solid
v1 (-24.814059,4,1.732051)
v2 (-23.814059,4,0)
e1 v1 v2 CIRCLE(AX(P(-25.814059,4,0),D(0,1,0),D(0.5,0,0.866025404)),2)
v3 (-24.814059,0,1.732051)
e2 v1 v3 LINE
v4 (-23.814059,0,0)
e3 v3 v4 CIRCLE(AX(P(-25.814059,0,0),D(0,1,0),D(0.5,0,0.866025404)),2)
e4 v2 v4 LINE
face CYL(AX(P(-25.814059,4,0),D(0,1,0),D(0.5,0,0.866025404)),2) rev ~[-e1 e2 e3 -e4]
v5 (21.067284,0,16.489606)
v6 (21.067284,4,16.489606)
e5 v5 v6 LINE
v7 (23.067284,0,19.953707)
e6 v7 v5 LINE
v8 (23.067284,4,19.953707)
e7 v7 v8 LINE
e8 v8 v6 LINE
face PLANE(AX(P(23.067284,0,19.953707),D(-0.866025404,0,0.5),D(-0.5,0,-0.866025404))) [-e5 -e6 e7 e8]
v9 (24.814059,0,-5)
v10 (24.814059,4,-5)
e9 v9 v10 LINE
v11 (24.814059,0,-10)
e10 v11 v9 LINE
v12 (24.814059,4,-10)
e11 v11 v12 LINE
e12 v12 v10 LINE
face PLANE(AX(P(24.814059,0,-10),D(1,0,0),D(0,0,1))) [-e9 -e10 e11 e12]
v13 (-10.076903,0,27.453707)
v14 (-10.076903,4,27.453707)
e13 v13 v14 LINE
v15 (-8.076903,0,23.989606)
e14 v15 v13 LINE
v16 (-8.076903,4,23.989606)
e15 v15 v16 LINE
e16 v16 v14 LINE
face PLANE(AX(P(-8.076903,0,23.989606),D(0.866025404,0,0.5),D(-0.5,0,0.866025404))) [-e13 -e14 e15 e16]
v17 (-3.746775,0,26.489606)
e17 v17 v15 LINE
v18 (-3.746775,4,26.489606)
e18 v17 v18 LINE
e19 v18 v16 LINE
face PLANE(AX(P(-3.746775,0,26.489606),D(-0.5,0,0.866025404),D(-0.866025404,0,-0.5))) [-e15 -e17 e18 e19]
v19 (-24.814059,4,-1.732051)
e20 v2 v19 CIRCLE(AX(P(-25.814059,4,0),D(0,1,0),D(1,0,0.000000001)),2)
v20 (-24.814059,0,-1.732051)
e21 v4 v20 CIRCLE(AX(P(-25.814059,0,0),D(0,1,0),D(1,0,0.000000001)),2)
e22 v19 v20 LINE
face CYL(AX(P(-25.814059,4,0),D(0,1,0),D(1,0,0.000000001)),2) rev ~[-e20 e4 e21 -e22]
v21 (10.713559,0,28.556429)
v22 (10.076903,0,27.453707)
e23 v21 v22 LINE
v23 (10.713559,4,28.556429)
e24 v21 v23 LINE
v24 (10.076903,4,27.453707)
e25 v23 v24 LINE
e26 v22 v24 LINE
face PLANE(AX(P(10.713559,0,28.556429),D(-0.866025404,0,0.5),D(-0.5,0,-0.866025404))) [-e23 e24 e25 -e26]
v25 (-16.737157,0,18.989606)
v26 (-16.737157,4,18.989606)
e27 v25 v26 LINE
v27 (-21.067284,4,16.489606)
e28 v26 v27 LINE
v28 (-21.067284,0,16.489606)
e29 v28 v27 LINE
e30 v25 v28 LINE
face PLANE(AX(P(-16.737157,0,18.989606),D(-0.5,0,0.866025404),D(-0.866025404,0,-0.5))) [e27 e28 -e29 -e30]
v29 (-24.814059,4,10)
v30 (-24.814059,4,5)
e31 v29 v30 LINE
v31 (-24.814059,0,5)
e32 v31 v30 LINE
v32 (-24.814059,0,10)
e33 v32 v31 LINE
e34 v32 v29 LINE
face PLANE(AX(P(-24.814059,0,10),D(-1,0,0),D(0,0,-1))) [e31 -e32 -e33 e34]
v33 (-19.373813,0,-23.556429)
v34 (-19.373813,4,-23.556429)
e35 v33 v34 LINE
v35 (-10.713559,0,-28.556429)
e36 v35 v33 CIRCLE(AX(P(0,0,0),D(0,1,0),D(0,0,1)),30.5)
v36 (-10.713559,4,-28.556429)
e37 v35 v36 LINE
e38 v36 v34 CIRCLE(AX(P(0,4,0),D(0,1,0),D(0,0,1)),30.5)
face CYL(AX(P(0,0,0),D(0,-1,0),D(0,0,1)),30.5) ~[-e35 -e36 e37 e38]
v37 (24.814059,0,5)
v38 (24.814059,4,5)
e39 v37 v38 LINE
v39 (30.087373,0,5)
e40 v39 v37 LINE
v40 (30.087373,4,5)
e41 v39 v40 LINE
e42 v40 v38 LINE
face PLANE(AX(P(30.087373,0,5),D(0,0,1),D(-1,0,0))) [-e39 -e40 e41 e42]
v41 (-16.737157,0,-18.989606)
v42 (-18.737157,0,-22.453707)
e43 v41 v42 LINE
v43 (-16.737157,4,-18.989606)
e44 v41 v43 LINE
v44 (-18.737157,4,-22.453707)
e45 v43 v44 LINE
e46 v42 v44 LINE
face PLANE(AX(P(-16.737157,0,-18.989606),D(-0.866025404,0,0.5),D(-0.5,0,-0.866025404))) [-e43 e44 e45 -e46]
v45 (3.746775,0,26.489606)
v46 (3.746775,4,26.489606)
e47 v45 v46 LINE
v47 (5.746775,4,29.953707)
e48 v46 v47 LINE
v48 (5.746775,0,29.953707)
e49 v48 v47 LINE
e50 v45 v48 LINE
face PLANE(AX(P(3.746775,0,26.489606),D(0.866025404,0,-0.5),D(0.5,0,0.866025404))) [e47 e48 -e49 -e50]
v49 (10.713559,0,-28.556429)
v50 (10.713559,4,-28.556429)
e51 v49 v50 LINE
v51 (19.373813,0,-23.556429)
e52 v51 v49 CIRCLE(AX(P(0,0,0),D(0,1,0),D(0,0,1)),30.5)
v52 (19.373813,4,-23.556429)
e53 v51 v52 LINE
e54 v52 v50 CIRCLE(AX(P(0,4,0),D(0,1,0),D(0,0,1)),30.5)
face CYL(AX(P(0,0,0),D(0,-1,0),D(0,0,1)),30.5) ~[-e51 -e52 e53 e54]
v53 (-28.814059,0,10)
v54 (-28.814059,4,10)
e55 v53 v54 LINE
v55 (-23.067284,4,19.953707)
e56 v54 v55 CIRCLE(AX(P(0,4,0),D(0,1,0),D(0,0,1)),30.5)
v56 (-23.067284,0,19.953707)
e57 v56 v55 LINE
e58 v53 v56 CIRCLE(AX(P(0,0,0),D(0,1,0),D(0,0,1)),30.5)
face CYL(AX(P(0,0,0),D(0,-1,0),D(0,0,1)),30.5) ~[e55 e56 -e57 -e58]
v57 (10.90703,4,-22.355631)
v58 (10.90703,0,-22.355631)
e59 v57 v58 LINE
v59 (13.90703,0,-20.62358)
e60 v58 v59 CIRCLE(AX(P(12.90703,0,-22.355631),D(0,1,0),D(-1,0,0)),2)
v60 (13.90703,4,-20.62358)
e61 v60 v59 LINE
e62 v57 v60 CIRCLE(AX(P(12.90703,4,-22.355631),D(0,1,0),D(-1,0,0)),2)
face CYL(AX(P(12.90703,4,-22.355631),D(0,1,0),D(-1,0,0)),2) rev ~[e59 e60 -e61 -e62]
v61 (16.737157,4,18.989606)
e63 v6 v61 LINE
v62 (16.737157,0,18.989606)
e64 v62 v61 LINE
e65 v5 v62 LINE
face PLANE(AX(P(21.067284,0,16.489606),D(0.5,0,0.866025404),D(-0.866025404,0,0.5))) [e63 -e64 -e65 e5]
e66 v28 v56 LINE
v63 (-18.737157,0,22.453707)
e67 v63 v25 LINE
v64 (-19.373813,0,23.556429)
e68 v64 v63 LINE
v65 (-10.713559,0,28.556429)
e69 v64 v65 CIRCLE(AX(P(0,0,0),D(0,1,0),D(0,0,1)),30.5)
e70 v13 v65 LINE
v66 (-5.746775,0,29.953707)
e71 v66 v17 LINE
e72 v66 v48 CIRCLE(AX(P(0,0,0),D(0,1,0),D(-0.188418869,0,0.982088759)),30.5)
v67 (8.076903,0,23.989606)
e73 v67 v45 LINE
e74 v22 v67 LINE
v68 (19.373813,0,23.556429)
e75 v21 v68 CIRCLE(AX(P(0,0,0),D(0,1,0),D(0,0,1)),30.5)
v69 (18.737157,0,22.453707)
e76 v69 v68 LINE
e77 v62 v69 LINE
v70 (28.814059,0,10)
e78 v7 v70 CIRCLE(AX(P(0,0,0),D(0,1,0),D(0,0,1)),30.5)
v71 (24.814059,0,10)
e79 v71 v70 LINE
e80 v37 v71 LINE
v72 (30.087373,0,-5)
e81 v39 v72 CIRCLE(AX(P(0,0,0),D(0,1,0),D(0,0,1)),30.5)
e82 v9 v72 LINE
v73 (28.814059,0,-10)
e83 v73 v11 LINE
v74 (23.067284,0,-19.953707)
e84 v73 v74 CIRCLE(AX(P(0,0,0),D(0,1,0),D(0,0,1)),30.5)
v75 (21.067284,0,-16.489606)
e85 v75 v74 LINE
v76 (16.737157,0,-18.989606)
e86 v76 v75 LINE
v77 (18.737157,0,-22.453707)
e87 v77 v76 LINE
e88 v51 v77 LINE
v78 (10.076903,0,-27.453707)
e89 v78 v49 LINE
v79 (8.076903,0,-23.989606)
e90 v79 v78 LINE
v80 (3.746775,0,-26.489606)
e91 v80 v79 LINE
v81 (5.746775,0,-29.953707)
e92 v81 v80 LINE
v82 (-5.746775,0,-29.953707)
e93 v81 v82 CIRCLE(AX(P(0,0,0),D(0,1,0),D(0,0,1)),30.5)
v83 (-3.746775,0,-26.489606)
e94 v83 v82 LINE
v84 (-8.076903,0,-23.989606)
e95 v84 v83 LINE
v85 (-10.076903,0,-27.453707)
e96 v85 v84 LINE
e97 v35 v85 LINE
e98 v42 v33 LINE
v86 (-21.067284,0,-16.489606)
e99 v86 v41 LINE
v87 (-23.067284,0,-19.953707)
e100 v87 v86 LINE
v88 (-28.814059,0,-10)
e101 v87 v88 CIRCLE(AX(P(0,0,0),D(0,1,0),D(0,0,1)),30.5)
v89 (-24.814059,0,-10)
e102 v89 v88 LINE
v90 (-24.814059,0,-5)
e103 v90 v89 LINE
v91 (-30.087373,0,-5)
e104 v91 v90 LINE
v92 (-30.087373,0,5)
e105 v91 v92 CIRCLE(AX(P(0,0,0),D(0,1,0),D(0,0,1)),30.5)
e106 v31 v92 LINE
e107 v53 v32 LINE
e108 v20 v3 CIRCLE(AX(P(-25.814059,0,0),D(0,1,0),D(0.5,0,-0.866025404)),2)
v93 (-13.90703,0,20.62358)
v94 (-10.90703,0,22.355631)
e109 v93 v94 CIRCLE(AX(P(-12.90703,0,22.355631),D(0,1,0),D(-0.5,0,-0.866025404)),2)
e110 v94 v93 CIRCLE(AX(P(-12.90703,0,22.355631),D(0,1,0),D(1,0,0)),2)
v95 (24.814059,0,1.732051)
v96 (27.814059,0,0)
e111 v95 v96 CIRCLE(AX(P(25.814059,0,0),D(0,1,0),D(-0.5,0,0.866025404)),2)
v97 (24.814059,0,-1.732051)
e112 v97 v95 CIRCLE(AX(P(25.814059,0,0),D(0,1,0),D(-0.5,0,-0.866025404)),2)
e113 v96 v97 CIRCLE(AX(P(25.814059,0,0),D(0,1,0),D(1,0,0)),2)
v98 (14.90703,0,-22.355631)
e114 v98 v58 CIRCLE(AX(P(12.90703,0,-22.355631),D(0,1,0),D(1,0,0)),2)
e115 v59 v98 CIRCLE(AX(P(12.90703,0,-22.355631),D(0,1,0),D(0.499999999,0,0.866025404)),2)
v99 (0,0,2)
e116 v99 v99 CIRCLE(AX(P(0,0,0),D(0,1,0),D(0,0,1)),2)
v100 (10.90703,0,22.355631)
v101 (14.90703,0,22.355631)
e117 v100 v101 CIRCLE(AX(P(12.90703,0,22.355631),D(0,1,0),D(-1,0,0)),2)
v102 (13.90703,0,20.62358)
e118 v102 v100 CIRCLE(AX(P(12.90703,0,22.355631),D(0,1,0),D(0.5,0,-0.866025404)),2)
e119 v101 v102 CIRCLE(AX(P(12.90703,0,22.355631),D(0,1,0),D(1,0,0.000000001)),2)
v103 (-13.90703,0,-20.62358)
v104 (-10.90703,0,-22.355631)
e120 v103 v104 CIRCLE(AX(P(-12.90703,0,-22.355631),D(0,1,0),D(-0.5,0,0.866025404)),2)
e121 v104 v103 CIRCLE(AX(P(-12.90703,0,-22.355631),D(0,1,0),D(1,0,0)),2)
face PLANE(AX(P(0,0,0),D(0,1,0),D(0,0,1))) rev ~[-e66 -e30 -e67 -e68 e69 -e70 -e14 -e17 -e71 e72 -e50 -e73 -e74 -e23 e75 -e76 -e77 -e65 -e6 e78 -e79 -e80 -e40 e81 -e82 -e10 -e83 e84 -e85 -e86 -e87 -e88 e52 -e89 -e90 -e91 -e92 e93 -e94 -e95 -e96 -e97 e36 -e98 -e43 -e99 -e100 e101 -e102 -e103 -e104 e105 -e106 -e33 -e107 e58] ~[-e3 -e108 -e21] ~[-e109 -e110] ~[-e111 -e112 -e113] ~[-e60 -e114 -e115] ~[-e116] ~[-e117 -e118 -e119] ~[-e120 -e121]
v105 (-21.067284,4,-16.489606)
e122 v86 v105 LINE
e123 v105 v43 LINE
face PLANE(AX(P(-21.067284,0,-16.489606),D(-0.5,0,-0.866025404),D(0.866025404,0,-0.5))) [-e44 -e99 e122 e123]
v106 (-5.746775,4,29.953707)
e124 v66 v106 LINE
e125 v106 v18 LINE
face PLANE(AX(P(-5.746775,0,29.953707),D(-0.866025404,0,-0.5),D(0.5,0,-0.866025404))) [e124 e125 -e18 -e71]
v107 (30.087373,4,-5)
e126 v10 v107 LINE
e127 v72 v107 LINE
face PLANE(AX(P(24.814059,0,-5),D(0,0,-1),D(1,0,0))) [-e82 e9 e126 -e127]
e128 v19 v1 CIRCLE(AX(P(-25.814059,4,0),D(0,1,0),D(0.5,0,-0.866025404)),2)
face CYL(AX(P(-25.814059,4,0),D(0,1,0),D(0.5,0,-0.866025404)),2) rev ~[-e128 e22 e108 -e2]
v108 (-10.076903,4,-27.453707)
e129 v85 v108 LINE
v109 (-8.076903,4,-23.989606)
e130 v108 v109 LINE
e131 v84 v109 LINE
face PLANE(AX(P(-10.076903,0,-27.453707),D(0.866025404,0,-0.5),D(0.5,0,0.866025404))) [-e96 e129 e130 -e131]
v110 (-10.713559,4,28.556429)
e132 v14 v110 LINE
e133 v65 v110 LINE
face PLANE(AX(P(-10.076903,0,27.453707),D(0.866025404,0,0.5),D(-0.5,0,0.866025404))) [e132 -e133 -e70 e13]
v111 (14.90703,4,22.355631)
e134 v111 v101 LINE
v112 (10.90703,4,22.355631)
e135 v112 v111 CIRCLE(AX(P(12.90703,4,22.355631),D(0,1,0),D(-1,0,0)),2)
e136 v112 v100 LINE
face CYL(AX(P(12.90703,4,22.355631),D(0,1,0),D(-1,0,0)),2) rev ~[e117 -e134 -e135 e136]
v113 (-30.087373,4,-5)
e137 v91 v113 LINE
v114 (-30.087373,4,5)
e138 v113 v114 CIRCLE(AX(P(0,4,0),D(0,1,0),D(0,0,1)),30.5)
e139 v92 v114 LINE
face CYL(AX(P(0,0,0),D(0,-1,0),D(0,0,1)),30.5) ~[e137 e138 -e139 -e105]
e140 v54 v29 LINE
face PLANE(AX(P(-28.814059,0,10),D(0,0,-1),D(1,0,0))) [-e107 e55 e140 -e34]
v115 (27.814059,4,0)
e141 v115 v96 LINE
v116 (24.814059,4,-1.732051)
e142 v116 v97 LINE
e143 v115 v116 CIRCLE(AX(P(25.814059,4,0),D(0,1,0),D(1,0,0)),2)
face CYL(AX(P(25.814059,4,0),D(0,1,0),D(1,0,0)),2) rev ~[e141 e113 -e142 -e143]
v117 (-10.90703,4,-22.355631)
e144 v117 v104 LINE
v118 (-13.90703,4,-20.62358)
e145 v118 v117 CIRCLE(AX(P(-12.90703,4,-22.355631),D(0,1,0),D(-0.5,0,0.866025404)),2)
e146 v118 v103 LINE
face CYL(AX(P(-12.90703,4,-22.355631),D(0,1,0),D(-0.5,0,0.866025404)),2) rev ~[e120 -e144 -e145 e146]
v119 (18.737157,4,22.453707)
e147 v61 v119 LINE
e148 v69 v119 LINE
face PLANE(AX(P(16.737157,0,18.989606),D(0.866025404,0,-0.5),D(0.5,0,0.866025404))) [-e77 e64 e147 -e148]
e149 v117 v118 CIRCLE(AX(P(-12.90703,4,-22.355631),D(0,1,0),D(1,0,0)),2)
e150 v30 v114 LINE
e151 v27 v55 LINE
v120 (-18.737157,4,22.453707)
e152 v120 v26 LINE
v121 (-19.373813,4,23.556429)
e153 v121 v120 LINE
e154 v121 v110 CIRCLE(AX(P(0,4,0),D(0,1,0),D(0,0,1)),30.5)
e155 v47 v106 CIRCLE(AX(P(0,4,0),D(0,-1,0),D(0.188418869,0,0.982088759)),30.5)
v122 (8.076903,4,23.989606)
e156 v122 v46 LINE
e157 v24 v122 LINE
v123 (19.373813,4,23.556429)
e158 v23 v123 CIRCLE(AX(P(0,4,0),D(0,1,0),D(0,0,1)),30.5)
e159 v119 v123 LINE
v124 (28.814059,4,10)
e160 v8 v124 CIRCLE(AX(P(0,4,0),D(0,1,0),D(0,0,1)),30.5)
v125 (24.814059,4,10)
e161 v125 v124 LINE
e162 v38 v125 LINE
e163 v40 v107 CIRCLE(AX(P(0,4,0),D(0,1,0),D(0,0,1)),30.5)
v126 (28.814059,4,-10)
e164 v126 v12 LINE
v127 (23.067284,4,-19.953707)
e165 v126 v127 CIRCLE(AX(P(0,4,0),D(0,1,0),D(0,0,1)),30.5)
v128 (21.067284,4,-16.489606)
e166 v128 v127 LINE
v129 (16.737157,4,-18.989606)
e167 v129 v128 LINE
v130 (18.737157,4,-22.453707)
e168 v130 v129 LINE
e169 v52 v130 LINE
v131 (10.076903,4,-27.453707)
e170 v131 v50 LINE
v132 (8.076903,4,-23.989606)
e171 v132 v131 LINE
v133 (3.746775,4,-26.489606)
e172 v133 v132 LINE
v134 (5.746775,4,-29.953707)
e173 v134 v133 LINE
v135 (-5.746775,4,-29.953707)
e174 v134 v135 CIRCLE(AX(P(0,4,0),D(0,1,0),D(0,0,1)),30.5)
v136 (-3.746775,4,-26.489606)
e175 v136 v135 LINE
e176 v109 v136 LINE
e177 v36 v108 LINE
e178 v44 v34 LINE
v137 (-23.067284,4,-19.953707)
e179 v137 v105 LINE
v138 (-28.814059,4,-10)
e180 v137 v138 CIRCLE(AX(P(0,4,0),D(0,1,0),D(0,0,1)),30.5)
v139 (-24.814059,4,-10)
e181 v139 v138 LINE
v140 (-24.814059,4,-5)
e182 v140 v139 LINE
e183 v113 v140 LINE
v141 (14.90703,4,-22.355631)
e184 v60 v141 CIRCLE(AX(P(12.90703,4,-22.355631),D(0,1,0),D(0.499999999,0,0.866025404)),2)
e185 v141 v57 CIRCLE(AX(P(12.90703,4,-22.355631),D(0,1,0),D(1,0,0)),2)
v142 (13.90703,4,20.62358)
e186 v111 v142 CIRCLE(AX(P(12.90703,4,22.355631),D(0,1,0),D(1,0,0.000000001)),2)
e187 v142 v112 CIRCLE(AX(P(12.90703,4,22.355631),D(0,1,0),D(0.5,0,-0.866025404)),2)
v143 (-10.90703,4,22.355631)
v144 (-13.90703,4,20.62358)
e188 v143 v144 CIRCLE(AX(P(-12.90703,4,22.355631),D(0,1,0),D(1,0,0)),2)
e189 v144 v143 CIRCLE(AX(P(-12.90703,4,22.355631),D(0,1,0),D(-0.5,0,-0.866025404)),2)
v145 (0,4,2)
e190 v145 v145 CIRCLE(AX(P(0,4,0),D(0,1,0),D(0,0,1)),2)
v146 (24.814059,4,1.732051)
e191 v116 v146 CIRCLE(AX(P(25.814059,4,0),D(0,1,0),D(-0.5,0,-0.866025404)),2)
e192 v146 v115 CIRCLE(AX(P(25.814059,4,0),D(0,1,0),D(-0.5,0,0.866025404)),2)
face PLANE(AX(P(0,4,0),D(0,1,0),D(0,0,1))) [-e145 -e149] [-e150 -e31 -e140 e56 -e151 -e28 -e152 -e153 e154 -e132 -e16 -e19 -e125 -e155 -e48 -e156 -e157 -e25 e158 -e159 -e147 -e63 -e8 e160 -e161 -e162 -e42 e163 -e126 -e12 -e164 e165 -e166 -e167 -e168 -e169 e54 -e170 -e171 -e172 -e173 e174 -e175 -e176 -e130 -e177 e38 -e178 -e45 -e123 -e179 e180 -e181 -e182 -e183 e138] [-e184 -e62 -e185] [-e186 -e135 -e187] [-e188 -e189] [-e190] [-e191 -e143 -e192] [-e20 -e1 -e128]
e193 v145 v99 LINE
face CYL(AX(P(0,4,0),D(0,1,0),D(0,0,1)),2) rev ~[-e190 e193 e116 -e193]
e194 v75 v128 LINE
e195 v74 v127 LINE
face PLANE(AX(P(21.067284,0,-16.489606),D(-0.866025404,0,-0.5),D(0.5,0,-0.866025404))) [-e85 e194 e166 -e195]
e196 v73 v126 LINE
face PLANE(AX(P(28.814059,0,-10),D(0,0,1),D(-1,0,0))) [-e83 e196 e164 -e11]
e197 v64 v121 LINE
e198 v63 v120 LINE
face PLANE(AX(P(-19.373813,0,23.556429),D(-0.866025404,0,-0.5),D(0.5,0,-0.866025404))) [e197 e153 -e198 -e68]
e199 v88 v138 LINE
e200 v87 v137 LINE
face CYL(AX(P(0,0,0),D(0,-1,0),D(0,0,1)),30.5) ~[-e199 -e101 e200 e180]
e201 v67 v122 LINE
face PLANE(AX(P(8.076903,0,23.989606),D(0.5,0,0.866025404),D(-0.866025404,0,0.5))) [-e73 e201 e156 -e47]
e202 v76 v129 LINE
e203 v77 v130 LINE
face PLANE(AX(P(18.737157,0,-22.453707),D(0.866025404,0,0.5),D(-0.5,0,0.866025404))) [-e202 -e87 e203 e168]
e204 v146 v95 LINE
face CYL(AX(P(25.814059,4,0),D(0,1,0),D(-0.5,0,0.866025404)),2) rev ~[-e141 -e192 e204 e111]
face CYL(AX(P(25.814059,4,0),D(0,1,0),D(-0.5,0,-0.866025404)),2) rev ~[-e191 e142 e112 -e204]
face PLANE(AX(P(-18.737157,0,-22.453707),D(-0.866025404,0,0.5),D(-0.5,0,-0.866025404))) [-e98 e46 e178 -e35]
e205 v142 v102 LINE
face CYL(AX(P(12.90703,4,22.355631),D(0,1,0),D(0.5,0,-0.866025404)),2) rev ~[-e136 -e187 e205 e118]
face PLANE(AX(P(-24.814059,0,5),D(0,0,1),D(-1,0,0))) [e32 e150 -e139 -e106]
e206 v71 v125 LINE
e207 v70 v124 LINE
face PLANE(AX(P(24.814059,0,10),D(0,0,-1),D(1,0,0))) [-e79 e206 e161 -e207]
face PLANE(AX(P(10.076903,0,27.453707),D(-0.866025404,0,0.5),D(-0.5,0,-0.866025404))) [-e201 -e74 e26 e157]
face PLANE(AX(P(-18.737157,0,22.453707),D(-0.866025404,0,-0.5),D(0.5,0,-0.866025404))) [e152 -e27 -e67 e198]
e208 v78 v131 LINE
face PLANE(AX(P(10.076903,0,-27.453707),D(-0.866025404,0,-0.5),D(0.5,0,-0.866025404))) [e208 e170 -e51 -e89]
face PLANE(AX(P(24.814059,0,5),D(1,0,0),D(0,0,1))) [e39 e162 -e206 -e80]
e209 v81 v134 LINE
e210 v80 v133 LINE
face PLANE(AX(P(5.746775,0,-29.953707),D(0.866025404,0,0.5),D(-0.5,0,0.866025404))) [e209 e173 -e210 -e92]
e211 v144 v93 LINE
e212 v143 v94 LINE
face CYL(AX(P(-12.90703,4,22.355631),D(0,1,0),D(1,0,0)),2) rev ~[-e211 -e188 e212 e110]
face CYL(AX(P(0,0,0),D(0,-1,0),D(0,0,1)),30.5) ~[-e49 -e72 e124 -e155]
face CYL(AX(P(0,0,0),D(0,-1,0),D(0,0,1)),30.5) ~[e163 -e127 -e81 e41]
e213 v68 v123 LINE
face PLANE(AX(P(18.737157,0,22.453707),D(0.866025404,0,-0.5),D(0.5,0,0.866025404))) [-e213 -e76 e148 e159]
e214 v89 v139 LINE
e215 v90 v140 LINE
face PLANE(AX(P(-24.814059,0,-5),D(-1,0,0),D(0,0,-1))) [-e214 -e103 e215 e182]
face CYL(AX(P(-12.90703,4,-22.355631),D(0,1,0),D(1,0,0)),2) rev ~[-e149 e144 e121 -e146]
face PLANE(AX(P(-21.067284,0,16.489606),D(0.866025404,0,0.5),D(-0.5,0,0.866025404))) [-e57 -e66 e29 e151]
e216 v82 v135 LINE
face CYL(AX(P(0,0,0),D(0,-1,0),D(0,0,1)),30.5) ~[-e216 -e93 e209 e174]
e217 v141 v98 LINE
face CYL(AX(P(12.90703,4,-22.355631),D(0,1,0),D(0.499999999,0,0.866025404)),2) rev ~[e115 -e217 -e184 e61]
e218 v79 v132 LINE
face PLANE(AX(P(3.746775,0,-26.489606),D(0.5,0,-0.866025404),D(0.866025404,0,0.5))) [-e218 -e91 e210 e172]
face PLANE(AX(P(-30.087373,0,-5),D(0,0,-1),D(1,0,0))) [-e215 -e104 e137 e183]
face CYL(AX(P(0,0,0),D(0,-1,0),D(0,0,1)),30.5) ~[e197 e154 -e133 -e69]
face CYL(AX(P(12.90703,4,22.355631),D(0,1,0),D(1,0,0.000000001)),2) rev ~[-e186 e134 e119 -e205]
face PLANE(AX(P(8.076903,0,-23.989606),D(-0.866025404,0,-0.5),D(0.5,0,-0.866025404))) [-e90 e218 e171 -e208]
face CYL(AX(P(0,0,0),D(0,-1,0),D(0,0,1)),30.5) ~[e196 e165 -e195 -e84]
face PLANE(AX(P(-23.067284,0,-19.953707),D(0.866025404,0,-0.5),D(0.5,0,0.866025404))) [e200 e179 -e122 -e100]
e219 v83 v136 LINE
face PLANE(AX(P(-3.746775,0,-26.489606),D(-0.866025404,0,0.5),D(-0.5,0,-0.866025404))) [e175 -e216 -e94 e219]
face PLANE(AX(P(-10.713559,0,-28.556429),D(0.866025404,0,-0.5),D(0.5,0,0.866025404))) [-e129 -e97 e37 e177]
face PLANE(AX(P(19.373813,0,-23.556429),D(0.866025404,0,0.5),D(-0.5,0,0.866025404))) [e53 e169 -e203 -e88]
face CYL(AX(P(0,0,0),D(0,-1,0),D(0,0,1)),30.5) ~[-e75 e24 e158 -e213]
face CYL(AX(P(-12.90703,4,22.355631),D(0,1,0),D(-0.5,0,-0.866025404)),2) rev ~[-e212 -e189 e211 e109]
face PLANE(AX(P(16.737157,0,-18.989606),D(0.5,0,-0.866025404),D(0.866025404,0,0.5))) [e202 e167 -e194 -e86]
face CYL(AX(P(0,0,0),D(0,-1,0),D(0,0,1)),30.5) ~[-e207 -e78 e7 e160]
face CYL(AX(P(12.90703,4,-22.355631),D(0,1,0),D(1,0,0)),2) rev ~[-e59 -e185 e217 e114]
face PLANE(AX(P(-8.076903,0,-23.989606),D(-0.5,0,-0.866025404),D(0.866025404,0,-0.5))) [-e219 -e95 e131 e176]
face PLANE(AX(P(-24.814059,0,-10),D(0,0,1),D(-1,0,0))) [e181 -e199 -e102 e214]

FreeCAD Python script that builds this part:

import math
import FreeCAD as App
import Part
import Sketcher

V = App.Vector
Q = App.Units.Quantity

doc = App.newDocument("Part")
body = doc.addObject("PartDesign::Body", "Body")

# Sketch on XZ plane
sketch1 = body.newObject("Sketcher::SketchObject", "Sketch")
sketch1.AttachmentSupport = (doc.getObject("XZ_Plane"), [""])
sketch1.MapMode = "FlatFace"
sketch1.addGeometry(Part.Circle(V(0, 0, 0), V(0, 0, 1), 30.5), False)
sketch1.addConstraint([
    Sketcher.Constraint("Coincident", 0, 3, -1, 1),
    Sketcher.Constraint("Diameter", 0, Q("61 mm")),
])
pad1 = body.newObject("PartDesign::Pad", "Pad")
pad1.Profile = sketch1
pad1.Length = 4
pad1.Reversed = True

# Sketch on XZ plane
sketch2 = body.newObject("Sketcher::SketchObject", "Sketch001")
sketch2.AttachmentSupport = (doc.getObject("XZ_Plane"), [""])
sketch2.MapMode = "FlatFace"
sketch2.AttachmentOffset = App.Placement(V(0, 0, -4), App.Rotation())
sketch2.addGeometry(Part.Circle(V(0, 0, 0), V(0, 0, 1), 2), False)
sketch2.addConstraint([
    Sketcher.Constraint("Coincident", 0, 3, -1, 1),
    Sketcher.Constraint("Diameter", 0, Q("4 mm")),
])
pocket1 = body.newObject("PartDesign::Pocket", "Pocket")
pocket1.Profile = sketch2
pocket1.Length = 4
pocket1.Reversed = True

# Sketch on XZ plane
sketch3 = body.newObject("Sketcher::SketchObject", "Sketch002")
sketch3.AttachmentSupport = (doc.getObject("XZ_Plane"), [""])
sketch3.MapMode = "FlatFace"
sketch3.addGeometry([
    Part.ArcOfCircle(Part.Circle(V(0, 0, 0), V(0, 0, 1), 30.5), math.radians(-170.564661), math.radians(-160.860526)),  # 0
    Part.LineSegment(V(-30.087373, -5, 0), V(-24.814059, -5, 0)),  # 1
    Part.LineSegment(V(-24.814059, -5, 0), V(-24.814059, -10, 0)),  # 2
    Part.LineSegment(V(-24.814059, -10, 0), V(-28.814059, -10, 0)),  # 3
    Part.ArcOfCircle(Part.Circle(V(0, 0, 0), V(0, 0, 1), 30.5), math.radians(-19.139474), math.radians(-9.435339)),  # 4
    Part.LineSegment(V(28.814059, -10, 0), V(24.814059, -10, 0)),  # 5
    Part.LineSegment(V(24.814059, -10, 0), V(24.814059, -5, 0)),  # 6
    Part.LineSegment(V(24.814059, -5, 0), V(30.087373, -5, 0)),  # 7
    Part.LineSegment(V(30.087373, 5, 0), V(24.814059, 5, 0)),  # 8
    Part.LineSegment(V(24.814059, 5, 0), V(24.814059, 10, 0)),  # 9
    Part.LineSegment(V(24.814059, 10, 0), V(28.814059, 10, 0)),  # 10
    Part.ArcOfCircle(Part.Circle(V(0, 0, 0), V(0, 0, 1), 30.5), math.radians(9.435339), math.radians(19.139474)),  # 11
    Part.ArcOfCircle(Part.Circle(V(0, 0, 0), V(0, 0, 1), 30.5), math.radians(40.860526), math.radians(50.564661)),  # 12
    Part.LineSegment(V(23.067284, 19.953707, 0), V(21.067284, 16.489606, 0)),  # 13
    Part.LineSegment(V(21.067284, 16.489606, 0), V(16.737157, 18.989606, 0)),  # 14
    Part.LineSegment(V(16.737157, 18.989606, 0), V(18.737157, 22.453707, 0)),  # 15
    Part.LineSegment(V(18.737157, 22.453707, 0), V(19.373813, 23.556429, 0)),  # 16
    Part.ArcOfCircle(Part.Circle(V(0, 0, 0), V(0, 0, 1), 30.5), math.radians(69.435339), math.radians(79.139474)),  # 17
    Part.LineSegment(V(10.713559, 28.556429, 0), V(10.076903, 27.453707, 0)),  # 18
    Part.LineSegment(V(10.076903, 27.453707, 0), V(8.076903, 23.989606, 0)),  # 19
    Part.LineSegment(V(8.076903, 23.989606, 0), V(3.746775, 26.489606, 0)),  # 20
    Part.LineSegment(V(3.746775, 26.489606, 0), V(5.746775, 29.953707, 0)),  # 21
    Part.ArcOfCircle(Part.Circle(V(0, 0, 0), V(0, 0, 1), 30.5), math.radians(100.860526), math.radians(110.564661)),  # 22
    Part.LineSegment(V(-5.746775, 29.953707, 0), V(-3.746775, 26.489606, 0)),  # 23
    Part.LineSegment(V(-3.746775, 26.489606, 0), V(-8.076903, 23.989606, 0)),  # 24
    Part.LineSegment(V(-8.076903, 23.989606, 0), V(-10.076903, 27.453707, 0)),  # 25
    Part.LineSegment(V(-10.076903, 27.453707, 0), V(-10.713559, 28.556429, 0)),  # 26
    Part.ArcOfCircle(Part.Circle(V(0, 0, 0), V(0, 0, 1), 30.5), math.radians(129.435339), math.radians(139.139474)),  # 27
    Part.LineSegment(V(-19.373813, 23.556429, 0), V(-18.737157, 22.453707, 0)),  # 28
    Part.LineSegment(V(-18.737157, 22.453707, 0), V(-16.737157, 18.989606, 0)),  # 29
    Part.LineSegment(V(-16.737157, 18.989606, 0), V(-21.067284, 16.489606, 0)),  # 30
    Part.LineSegment(V(-21.067284, 16.489606, 0), V(-23.067284, 19.953707, 0)),  # 31
    Part.ArcOfCircle(Part.Circle(V(0, 0, 0), V(0, 0, 1), 30.5), math.radians(160.860526), math.radians(170.564661)),  # 32
    Part.LineSegment(V(-28.814059, 10, 0), V(-24.814059, 10, 0)),  # 33
    Part.LineSegment(V(-24.814059, 10, 0), V(-24.814059, 5, 0)),  # 34
    Part.LineSegment(V(-24.814059, 5, 0), V(-30.087373, 5, 0)),  # 35
    Part.LineSegment(V(-18.737157, -22.453707, 0), V(-19.373813, -23.556429, 0)),  # 36
    Part.ArcOfCircle(Part.Circle(V(0, 0, 0), V(0, 0, 1), 30.5), math.radians(-139.139474), math.radians(-129.435339)),  # 37
    Part.LineSegment(V(-23.067284, -19.953707, 0), V(-21.067284, -16.489606, 0)),  # 38
    Part.LineSegment(V(-21.067284, -16.489606, 0), V(-16.737157, -18.989606, 0)),  # 39
    Part.LineSegment(V(-16.737157, -18.989606, 0), V(-18.737157, -22.453707, 0)),  # 40
    Part.LineSegment(V(-3.746775, -26.489606, 0), V(-5.746775, -29.953707, 0)),  # 41
    Part.ArcOfCircle(Part.Circle(V(0, 0, 0), V(0, 0, 1), 30.5), math.radians(-110.564661), math.radians(-100.860526)),  # 42
    Part.LineSegment(V(-10.713559, -28.556429, 0), V(-10.076903, -27.453707, 0)),  # 43
    Part.LineSegment(V(-10.076903, -27.453707, 0), V(-8.076903, -23.989606, 0)),  # 44
    Part.LineSegment(V(-8.076903, -23.989606, 0), V(-3.746775, -26.489606, 0)),  # 45
    Part.LineSegment(V(10.076903, -27.453707, 0), V(10.713559, -28.556429, 0)),  # 46
    Part.ArcOfCircle(Part.Circle(V(0, 0, 0), V(0, 0, 1), 30.5), math.radians(-79.139474), math.radians(-69.435339)),  # 47
    Part.LineSegment(V(5.746775, -29.953707, 0), V(3.746775, -26.489606, 0)),  # 48
    Part.LineSegment(V(3.746775, -26.489606, 0), V(8.076903, -23.989606, 0)),  # 49
    Part.LineSegment(V(8.076903, -23.989606, 0), V(10.076903, -27.453707, 0)),  # 50
    Part.LineSegment(V(21.067284, -16.489606, 0), V(23.067284, -19.953707, 0)),  # 51
    Part.ArcOfCircle(Part.Circle(V(0, 0, 0), V(0, 0, 1), 30.5), math.radians(-50.564661), math.radians(-40.860526)),  # 52
    Part.LineSegment(V(19.373813, -23.556429, 0), V(18.737157, -22.453707, 0)),  # 53
    Part.LineSegment(V(18.737157, -22.453707, 0), V(16.737157, -18.989606, 0)),  # 54
    Part.LineSegment(V(16.737157, -18.989606, 0), V(21.067284, -16.489606, 0)),  # 55
], False)
sketch3.addConstraint([
    Sketcher.Constraint("Coincident", 0, 1, 1, 1),
    Sketcher.Constraint("Coincident", 1, 2, 2, 1),
    Sketcher.Constraint("Coincident", 2, 2, 3, 1),
    Sketcher.Constraint("Coincident", 3, 2, 0, 2),
    Sketcher.Constraint("Coincident", 4, 1, 5, 1),
    Sketcher.Constraint("Coincident", 5, 2, 6, 1),
    Sketcher.Constraint("Coincident", 6, 2, 7, 1),
    Sketcher.Constraint("Coincident", 7, 2, 4, 2),
    Sketcher.Constraint("Coincident", 8, 2, 9, 1),
    Sketcher.Constraint("Coincident", 9, 2, 10, 1),
    Sketcher.Constraint("Coincident", 10, 2, 11, 2),
    Sketcher.Constraint("Coincident", 11, 1, 8, 1),
    Sketcher.Constraint("Coincident", 12, 1, 13, 1),
    Sketcher.Constraint("Coincident", 13, 2, 14, 1),
    Sketcher.Constraint("Coincident", 14, 2, 15, 1),
    Sketcher.Constraint("Coincident", 15, 2, 16, 1),
    Sketcher.Constraint("Coincident", 16, 2, 12, 2),
    Sketcher.Constraint("Coincident", 17, 1, 18, 1),
    Sketcher.Constraint("Coincident", 18, 2, 19, 1),
    Sketcher.Constraint("Coincident", 19, 2, 20, 1),
    Sketcher.Constraint("Coincident", 20, 2, 21, 1),
    Sketcher.Constraint("Coincident", 21, 2, 17, 2),
    Sketcher.Constraint("Coincident", 22, 1, 23, 1),
    Sketcher.Constraint("Coincident", 23, 2, 24, 1),
    Sketcher.Constraint("Coincident", 24, 2, 25, 1),
    Sketcher.Constraint("Coincident", 25, 2, 26, 1),
    Sketcher.Constraint("Coincident", 26, 2, 22, 2),
    Sketcher.Constraint("Coincident", 27, 1, 28, 1),
    Sketcher.Constraint("Coincident", 28, 2, 29, 1),
    Sketcher.Constraint("Coincident", 29, 2, 30, 1),
    Sketcher.Constraint("Coincident", 30, 2, 31, 1),
    Sketcher.Constraint("Coincident", 31, 2, 27, 2),
    Sketcher.Constraint("Coincident", 32, 1, 33, 1),
    Sketcher.Constraint("Coincident", 33, 2, 34, 1),
    Sketcher.Constraint("Coincident", 34, 2, 35, 1),
    Sketcher.Constraint("Coincident", 35, 2, 32, 2),
    Sketcher.Constraint("Coincident", 36, 2, 37, 2),
    Sketcher.Constraint("Coincident", 37, 1, 38, 1),
    Sketcher.Constraint("Coincident", 38, 2, 39, 1),
    Sketcher.Constraint("Coincident", 39, 2, 40, 1),
    Sketcher.Constraint("Coincident", 40, 2, 36, 1),
    Sketcher.Constraint("Coincident", 41, 2, 42, 2),
    Sketcher.Constraint("Coincident", 42, 1, 43, 1),
    Sketcher.Constraint("Coincident", 43, 2, 44, 1),
    Sketcher.Constraint("Coincident", 44, 2, 45, 1),
    Sketcher.Constraint("Coincident", 45, 2, 41, 1),
    Sketcher.Constraint("Coincident", 46, 2, 47, 2),
    Sketcher.Constraint("Coincident", 47, 1, 48, 1),
    Sketcher.Constraint("Coincident", 48, 2, 49, 1),
    Sketcher.Constraint("Coincident", 49, 2, 50, 1),
    Sketcher.Constraint("Coincident", 50, 2, 46, 1),
    Sketcher.Constraint("Coincident", 51, 2, 52, 2),
    Sketcher.Constraint("Coincident", 52, 1, 53, 1),
    Sketcher.Constraint("Coincident", 53, 2, 54, 1),
    Sketcher.Constraint("Coincident", 54, 2, 55, 1),
    Sketcher.Constraint("Coincident", 55, 2, 51, 1),
    Sketcher.Constraint("Horizontal", 1),
    Sketcher.Constraint("Vertical", 2),
    Sketcher.Constraint("Horizontal", 3),
    Sketcher.Constraint("Horizontal", 5),
    Sketcher.Constraint("Vertical", 6),
    Sketcher.Constraint("Horizontal", 7),
    Sketcher.Constraint("Horizontal", 8),
    Sketcher.Constraint("Vertical", 9),
    Sketcher.Constraint("Horizontal", 10),
    Sketcher.Constraint("Horizontal", 33),
    Sketcher.Constraint("Vertical", 34),
    Sketcher.Constraint("Horizontal", 35),
    Sketcher.Constraint("Coincident", 0, 3, -1, 1),
    Sketcher.Constraint("Coincident", 4, 3, -1, 1),
    Sketcher.Constraint("Coincident", 11, 3, -1, 1),
    Sketcher.Constraint("Coincident", 12, 3, -1, 1),
    Sketcher.Constraint("Coincident", 17, 3, -1, 1),
    Sketcher.Constraint("Coincident", 22, 3, -1, 1),
    Sketcher.Constraint("Coincident", 27, 3, -1, 1),
    Sketcher.Constraint("Coincident", 32, 3, -1, 1),
    Sketcher.Constraint("Coincident", 37, 3, -1, 1),
    Sketcher.Constraint("Coincident", 42, 3, -1, 1),
    Sketcher.Constraint("Coincident", 47, 3, -1, 1),
    Sketcher.Constraint("Coincident", 52, 3, -1, 1),
    Sketcher.Constraint("Equal", 0, 4),
    Sketcher.Constraint("Equal", 4, 11),
    Sketcher.Constraint("Equal", 11, 12),
    Sketcher.Constraint("Equal", 12, 17),
    Sketcher.Constraint("Equal", 17, 22),
    Sketcher.Constraint("Equal", 22, 27),
    Sketcher.Constraint("Equal", 27, 32),
    Sketcher.Constraint("Equal", 32, 37),
    Sketcher.Constraint("Equal", 37, 42),
    Sketcher.Constraint("Equal", 42, 47),
    Sketcher.Constraint("Equal", 47, 52),
    Sketcher.Constraint("Symmetric", 1, 2, 8, 2, -1, 1),
    Sketcher.Constraint("Symmetric", 5, 2, 33, 2, -1, 1),
    Sketcher.Constraint("Symmetric", 13, 2, 38, 2, -1, 1),
    Sketcher.Constraint("Symmetric", 14, 2, 39, 2, -1, 1),
    Sketcher.Constraint("Symmetric", 15, 2, 40, 2, -1, 1),
    Sketcher.Constraint("Symmetric", 18, 2, 43, 2, -1, 1),
    Sketcher.Constraint("Symmetric", 19, 2, 44, 2, -1, 1),
    Sketcher.Constraint("Symmetric", 20, 2, 45, 2, -1, 1),
    Sketcher.Constraint("Symmetric", 23, 2, 48, 2, -1, 1),
    Sketcher.Constraint("Symmetric", 24, 2, 49, 2, -1, 1),
    Sketcher.Constraint("Symmetric", 25, 2, 50, 2, -1, 1),
    Sketcher.Constraint("Symmetric", 28, 2, 53, 2, -1, 1),
    Sketcher.Constraint("Symmetric", 29, 2, 54, 2, -1, 1),
    Sketcher.Constraint("Symmetric", 30, 2, 55, 2, -1, 1),
    Sketcher.Constraint("Symmetric", 2, 2, 5, 2, -2),
    Sketcher.Constraint("Symmetric", 20, 2, 23, 2, -2),
    Sketcher.Constraint("Symmetric", 19, 2, 24, 2, -2),
    Sketcher.Constraint("Symmetric", 18, 2, 25, 2, -2),
    Sketcher.Constraint("Symmetric", 15, 2, 28, 2, -2),
    Sketcher.Constraint("Symmetric", 14, 2, 29, 2, -2),
    Sketcher.Constraint("Symmetric", 13, 2, 30, 2, -2),
    Sketcher.Constraint("Perpendicular", 13, 14),
    Sketcher.Constraint("Perpendicular", 14, 15),
    Sketcher.Constraint("Parallel", 15, 16),
    Sketcher.Constraint("Parallel", 16, 18),
    Sketcher.Constraint("Parallel", 18, 19),
    Sketcher.Constraint("Perpendicular", 19, 20),
    Sketcher.Constraint("Perpendicular", 20, 21),
    Sketcher.Constraint("Perpendicular", 23, 24),
    Sketcher.Constraint("Parallel", 25, 26),
    Sketcher.Constraint("Parallel", 26, 28),
    Sketcher.Constraint("Perpendicular", 30, 31),
    Sketcher.Constraint("Parallel", 21, 36),
    Sketcher.Constraint("Parallel", 36, 38),
    Sketcher.Constraint("Parallel", 40, 41),
    Sketcher.Constraint("Parallel", 41, 43),
    Sketcher.Constraint("Parallel", 31, 46),
    Sketcher.Constraint("Parallel", 46, 48),
    Sketcher.Constraint("Parallel", 50, 51),
    Sketcher.Constraint("Parallel", 51, 53),
    Sketcher.Constraint("Horizontal", 1, 2, 6, 2),
    Sketcher.Constraint("Horizontal", 10, 2, 32, 1),
    Sketcher.Constraint("Horizontal", 11, 1, 34, 2),
    Sketcher.Constraint("Equal", 13, 15),
    Sketcher.Constraint("Equal", 16, 18),
    Sketcher.Constraint("Equal", 15, 19),
    Sketcher.Constraint("Equal", 14, 20),
    Sketcher.Constraint("Equal", 19, 21),
    Sketcher.Constraint("Radius", 0, Q("30.5 mm")),
    Sketcher.Constraint("DistanceX", 3, 2, 3, 1, Q("4 mm")),
    Sketcher.Constraint("DistanceY", 2, 2, 2, 1, Q("5 mm")),
    Sketcher.Constraint("Angle", 13, Q("-120 deg")),
    Sketcher.Constraint("Distance", 13, Q("4 mm")),
    Sketcher.Constraint("Distance", 14, Q("5 mm")),
    Sketcher.Constraint("DistanceY", 0, 1, -1, 1, Q("5 mm")),
    Sketcher.Constraint("DistanceY", -1, 1, 16, 2, Q("23.556429 mm")),
])
pocket2 = body.newObject("PartDesign::Pocket", "Pocket001")
pocket2.Profile = sketch3
pocket2.Length = 4

# Sketch on XZ plane
sketch4 = body.newObject("Sketcher::SketchObject", "Sketch003")
sketch4.AttachmentSupport = (doc.getObject("XZ_Plane"), [""])
sketch4.MapMode = "FlatFace"
sketch4.AttachmentOffset = App.Placement(V(0, 0, -4), App.Rotation())
sketch4.addGeometry([
    Part.ArcOfCircle(Part.Circle(V(-12.90703, -22.355631, 0), V(0, 0, 1), 2), math.radians(0), math.radians(120)),  # 0
    Part.ArcOfCircle(Part.Circle(V(-12.90703, -22.355631, 0), V(0, 0, 1), 2), math.radians(120), math.radians(360)),  # 1
    Part.ArcOfCircle(Part.Circle(V(-25.814059, 0, 0), V(0, 0, 1), 2), math.radians(-60), math.radians(0)),  # 2
    Part.ArcOfCircle(Part.Circle(V(-25.814059, 0, 0), V(0, 0, 1), 2), math.radians(60), math.radians(300)),  # 3
    Part.ArcOfCircle(Part.Circle(V(-25.814059, 0, 0), V(0, 0, 1), 2), math.radians(0), math.radians(60)),  # 4
    Part.ArcOfCircle(Part.Circle(V(12.90703, -22.355631, 0), V(0, 0, 1), 2), math.radians(60), math.radians(180)),  # 5
    Part.ArcOfCircle(Part.Circle(V(12.90703, -22.355631, 0), V(0, 0, 1), 2), math.radians(0), math.radians(60)),  # 6
    Part.ArcOfCircle(Part.Circle(V(12.90703, -22.355631, 0), V(0, 0, 1), 2), math.radians(180), math.radians(360)),  # 7
    Part.ArcOfCircle(Part.Circle(V(25.814059, 0, 0), V(0, 0, 1), 2), math.radians(120), math.radians(240)),  # 8
    Part.ArcOfCircle(Part.Circle(V(25.814059, 0, 0), V(0, 0, 1), 2), math.radians(0), math.radians(120)),  # 9
    Part.ArcOfCircle(Part.Circle(V(25.814059, 0, 0), V(0, 0, 1), 2), math.radians(-120), math.radians(0)),  # 10
    Part.ArcOfCircle(Part.Circle(V(-12.90703, 22.355631, 0), V(0, 0, 1), 2), math.radians(0), math.radians(240)),  # 11
    Part.ArcOfCircle(Part.Circle(V(-12.90703, 22.355631, 0), V(0, 0, 1), 2), math.radians(-120), math.radians(0)),  # 12
    Part.ArcOfCircle(Part.Circle(V(12.90703, 22.355631, 0), V(0, 0, 1), 2), math.radians(-60), math.radians(0)),  # 13
    Part.ArcOfCircle(Part.Circle(V(12.90703, 22.355631, 0), V(0, 0, 1), 2), math.radians(-180), math.radians(-60)),  # 14
    Part.ArcOfCircle(Part.Circle(V(12.90703, 22.355631, 0), V(0, 0, 1), 2), math.radians(0), math.radians(180)),  # 15
], False)
sketch4.addConstraint([
    Sketcher.Constraint("Tangent", 0, 1, 1, 2),
    Sketcher.Constraint("Coincident", 1, 1, 0, 2),
    Sketcher.Constraint("Tangent", 2, 1, 3, 2),
    Sketcher.Constraint("Tangent", 3, 1, 4, 2),
    Sketcher.Constraint("Tangent", 4, 1, 2, 2),
    Sketcher.Constraint("Tangent", 5, 1, 6, 2),
    Sketcher.Constraint("Tangent", 6, 1, 7, 2),
    Sketcher.Constraint("Tangent", 7, 1, 5, 2),
    Sketcher.Constraint("Tangent", 8, 1, 9, 2),
    Sketcher.Constraint("Tangent", 9, 1, 10, 2),
    Sketcher.Constraint("Tangent", 10, 1, 8, 2),
    Sketcher.Constraint("Tangent", 11, 1, 12, 2),
    Sketcher.Constraint("Coincident", 12, 1, 11, 2),
    Sketcher.Constraint("Tangent", 13, 1, 14, 2),
    Sketcher.Constraint("Tangent", 14, 1, 15, 2),
    Sketcher.Constraint("Tangent", 15, 1, 13, 2),
    Sketcher.Constraint("Equal", 1, 2),
    Sketcher.Constraint("Equal", 4, 5),
    Sketcher.Constraint("Equal", 7, 8),
    Sketcher.Constraint("Equal", 10, 11),
    Sketcher.Constraint("Equal", 12, 13),
    Sketcher.Constraint("Symmetric", 2, 3, 8, 3, -1, 1),
    Sketcher.Constraint("Symmetric", 5, 3, 11, 3, -1, 1),
    Sketcher.Constraint("Symmetric", 0, 3, 13, 3, -1, 1),
    Sketcher.Constraint("Symmetric", 0, 3, 5, 3, -2),
    Sketcher.Constraint("Symmetric", 3, 1, 8, 1, -2),
    Sketcher.Constraint("PointOnObject", 4, 1, -1),
    Sketcher.Constraint("PointOnObject", 9, 1, -1),
    Sketcher.Constraint("Horizontal", 7, 3, 0, 1),
    Sketcher.Constraint("Horizontal", 1, 1, 5, 1),
    Sketcher.Constraint("Horizontal", 0, 1, 6, 1),
    Sketcher.Constraint("Horizontal", 6, 1, 7, 1),
    Sketcher.Constraint("Horizontal", 2, 1, 10, 1),
    Sketcher.Constraint("Horizontal", 15, 3, 11, 1),
    Sketcher.Constraint("Horizontal", 12, 1, 13, 1),
    Sketcher.Constraint("Horizontal", 11, 1, 14, 1),
    Sketcher.Constraint("Horizontal", 14, 1, 15, 1),
    Sketcher.Constraint("Vertical", 2, 1, 3, 1),
    Sketcher.Constraint("Vertical", 1, 1, 12, 1),
    Sketcher.Constraint("Radius", 0, Q("2 mm")),
    Sketcher.Constraint("DistanceX", 1, 1, 0, 3, Q("1 mm")),
    Sketcher.Constraint("DistanceX", 2, 3, 2, 1, Q("1 mm")),
    Sketcher.Constraint("DistanceX", 0, 3, -1, 1, Q("12.90703 mm")),
    Sketcher.Constraint("DistanceY", 0, 3, -1, 1, Q("22.355631 mm")),
    Sketcher.Constraint("DistanceX", 2, 3, -1, 1, Q("25.814059 mm")),
])
pocket3 = body.newObject("PartDesign::Pocket", "Pocket002")
pocket3.Profile = sketch4
pocket3.Length = 10
pocket3.Reversed = True

doc.recompute()
